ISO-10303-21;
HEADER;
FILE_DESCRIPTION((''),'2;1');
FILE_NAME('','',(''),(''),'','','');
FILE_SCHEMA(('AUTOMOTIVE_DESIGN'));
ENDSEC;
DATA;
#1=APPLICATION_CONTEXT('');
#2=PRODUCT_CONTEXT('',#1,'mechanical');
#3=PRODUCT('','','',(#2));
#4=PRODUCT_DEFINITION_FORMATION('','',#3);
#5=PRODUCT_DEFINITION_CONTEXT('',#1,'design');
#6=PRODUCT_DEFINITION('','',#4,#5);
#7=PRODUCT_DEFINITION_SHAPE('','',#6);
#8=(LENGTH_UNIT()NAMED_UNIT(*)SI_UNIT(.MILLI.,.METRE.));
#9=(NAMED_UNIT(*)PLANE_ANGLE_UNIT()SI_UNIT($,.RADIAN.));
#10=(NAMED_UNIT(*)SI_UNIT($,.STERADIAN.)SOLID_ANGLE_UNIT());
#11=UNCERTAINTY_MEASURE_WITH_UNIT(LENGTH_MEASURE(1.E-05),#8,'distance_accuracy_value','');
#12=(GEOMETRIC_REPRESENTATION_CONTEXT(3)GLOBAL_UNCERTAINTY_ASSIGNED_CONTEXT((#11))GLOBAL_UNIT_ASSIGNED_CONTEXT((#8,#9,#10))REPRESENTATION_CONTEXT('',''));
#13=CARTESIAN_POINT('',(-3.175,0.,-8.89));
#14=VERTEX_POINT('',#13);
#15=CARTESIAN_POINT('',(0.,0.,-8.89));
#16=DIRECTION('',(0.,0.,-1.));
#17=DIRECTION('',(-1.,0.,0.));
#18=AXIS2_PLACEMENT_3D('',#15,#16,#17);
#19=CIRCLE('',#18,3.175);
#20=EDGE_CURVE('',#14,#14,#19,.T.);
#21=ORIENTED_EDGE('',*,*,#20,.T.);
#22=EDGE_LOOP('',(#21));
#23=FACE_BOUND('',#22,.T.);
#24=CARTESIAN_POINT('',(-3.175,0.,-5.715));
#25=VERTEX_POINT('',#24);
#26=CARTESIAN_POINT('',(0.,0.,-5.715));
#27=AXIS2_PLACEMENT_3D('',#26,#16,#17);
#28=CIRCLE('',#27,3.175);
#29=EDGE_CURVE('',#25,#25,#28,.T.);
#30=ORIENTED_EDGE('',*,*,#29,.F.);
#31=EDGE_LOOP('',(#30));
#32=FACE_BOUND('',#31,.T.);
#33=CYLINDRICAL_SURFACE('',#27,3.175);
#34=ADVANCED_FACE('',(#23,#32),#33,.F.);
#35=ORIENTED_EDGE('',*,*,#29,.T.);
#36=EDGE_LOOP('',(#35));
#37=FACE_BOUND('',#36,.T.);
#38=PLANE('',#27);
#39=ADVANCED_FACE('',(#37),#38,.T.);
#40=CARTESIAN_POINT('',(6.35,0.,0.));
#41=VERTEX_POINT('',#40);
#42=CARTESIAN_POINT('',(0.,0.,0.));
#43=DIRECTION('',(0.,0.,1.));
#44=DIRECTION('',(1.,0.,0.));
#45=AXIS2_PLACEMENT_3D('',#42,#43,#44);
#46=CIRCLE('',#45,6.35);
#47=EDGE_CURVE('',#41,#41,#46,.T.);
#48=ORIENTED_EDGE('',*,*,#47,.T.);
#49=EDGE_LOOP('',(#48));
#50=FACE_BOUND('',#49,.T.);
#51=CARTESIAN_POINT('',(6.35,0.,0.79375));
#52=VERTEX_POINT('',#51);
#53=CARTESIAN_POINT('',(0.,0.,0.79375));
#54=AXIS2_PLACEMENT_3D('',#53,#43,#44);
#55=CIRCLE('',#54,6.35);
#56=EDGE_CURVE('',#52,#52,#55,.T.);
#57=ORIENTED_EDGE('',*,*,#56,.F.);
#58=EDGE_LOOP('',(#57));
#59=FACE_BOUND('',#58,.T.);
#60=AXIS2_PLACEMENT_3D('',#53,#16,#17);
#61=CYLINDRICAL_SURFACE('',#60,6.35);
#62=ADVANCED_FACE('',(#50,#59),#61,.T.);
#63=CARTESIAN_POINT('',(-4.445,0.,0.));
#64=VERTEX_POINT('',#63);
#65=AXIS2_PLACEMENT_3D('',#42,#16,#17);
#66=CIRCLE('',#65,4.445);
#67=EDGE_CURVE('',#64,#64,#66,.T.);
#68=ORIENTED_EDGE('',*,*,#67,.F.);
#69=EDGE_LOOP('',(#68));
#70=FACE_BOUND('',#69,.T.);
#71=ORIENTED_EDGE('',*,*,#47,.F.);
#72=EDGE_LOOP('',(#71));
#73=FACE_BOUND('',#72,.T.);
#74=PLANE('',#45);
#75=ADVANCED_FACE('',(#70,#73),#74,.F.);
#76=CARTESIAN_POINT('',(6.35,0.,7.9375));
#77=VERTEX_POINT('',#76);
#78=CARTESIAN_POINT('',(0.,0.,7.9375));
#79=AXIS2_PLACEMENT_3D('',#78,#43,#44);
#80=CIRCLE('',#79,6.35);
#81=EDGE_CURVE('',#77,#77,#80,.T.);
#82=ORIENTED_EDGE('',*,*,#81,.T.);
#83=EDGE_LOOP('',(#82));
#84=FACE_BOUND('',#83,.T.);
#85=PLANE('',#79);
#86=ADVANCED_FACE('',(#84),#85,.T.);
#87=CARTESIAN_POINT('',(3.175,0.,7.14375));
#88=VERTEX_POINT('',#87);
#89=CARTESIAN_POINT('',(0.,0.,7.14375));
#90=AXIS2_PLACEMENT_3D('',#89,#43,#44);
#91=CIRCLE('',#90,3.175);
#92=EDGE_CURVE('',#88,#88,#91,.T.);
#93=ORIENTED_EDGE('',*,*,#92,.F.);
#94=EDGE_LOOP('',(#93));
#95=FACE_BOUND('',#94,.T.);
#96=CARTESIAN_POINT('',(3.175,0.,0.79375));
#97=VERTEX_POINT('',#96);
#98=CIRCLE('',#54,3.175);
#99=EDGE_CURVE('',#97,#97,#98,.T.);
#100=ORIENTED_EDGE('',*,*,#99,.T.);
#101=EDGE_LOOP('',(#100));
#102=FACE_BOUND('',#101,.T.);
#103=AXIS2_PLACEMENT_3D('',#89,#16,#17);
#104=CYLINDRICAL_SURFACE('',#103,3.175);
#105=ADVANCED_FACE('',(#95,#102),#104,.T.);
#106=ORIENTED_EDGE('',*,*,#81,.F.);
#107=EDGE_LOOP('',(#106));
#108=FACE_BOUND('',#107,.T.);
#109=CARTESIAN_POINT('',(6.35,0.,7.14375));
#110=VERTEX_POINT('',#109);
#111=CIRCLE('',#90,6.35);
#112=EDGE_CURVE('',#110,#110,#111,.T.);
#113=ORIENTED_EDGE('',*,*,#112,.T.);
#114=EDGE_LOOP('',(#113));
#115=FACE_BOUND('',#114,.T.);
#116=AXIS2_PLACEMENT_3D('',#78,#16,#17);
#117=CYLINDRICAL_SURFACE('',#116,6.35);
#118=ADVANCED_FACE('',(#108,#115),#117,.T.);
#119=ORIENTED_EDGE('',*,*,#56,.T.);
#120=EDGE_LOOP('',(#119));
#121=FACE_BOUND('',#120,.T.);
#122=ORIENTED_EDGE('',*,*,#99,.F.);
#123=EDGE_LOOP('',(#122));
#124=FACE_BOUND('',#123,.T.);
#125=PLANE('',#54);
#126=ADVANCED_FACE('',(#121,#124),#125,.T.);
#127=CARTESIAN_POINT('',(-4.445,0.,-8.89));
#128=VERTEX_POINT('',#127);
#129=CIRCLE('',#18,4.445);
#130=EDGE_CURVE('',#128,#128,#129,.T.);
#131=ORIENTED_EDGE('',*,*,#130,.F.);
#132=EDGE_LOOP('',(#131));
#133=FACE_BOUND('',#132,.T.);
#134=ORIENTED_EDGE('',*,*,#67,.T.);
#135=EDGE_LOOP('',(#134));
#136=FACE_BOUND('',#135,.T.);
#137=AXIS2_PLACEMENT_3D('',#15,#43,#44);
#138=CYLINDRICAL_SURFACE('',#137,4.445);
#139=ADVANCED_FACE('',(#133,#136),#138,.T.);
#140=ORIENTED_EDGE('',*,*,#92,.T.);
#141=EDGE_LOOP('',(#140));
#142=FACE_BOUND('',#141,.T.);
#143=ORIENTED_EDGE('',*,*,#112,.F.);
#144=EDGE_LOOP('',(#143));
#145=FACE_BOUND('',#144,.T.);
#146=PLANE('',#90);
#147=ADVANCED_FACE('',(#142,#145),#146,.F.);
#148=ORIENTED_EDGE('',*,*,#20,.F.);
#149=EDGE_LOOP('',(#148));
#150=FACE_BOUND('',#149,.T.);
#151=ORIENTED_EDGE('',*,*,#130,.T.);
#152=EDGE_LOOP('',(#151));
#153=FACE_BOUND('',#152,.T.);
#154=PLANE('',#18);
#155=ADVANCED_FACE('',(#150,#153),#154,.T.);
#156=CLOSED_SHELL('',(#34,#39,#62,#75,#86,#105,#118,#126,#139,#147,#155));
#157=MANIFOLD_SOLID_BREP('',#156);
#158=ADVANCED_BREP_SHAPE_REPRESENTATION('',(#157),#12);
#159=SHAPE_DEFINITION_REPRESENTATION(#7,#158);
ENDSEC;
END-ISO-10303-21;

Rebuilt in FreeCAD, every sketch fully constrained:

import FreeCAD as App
import Part
import Sketcher

V = App.Vector
Q = App.Units.Quantity

doc = App.newDocument("Part")
body = doc.addObject("PartDesign::Body", "Body")

# Sketch on XY plane
sketch1 = doc.addObject("Sketcher::SketchObject", "Sketch")
body.addObject(sketch1)
sketch1.AttachmentSupport = (doc.XY_Plane, [""])
sketch1.MapMode = "FlatFace"
sketch1.addGeometry(Part.Circle(V(0, 0, 0), V(0, 0, 1), 6), False)
sketch1.addConstraint([
    Sketcher.Constraint("Coincident", 0, 3, -1, 1),
    Sketcher.Constraint("Diameter", 0, Q("0.5 in")),
])
pad1 = doc.addObject("PartDesign::Pad", "Pad")
body.addObject(pad1)
pad1.Profile = sketch1
pad1.Length = Q("0.03125 in")

# Sketch on XY plane
sketch2 = doc.addObject("Sketcher::SketchObject", "Sketch001")
body.addObject(sketch2)
sketch2.AttachmentSupport = (doc.XY_Plane, [""])
sketch2.MapMode = "FlatFace"
sketch2.AttachmentOffset = App.Placement(V(0, 0, 0.03125 * 25.4), App.Rotation())
sketch2.addGeometry(Part.Circle(V(0, 0, 0), V(0, 0, 1), 3.2), False)
sketch2.addConstraint([
    Sketcher.Constraint("Coincident", 0, 3, -1, 1),
    Sketcher.Constraint("Diameter", 0, Q("0.25 in")),
])
pad2 = doc.addObject("PartDesign::Pad", "Pad001")
body.addObject(pad2)
pad2.Profile = sketch2
pad2.Length = Q("0.25 in")

# Sketch on XY plane
sketch3 = doc.addObject("Sketcher::SketchObject", "Sketch002")
body.addObject(sketch3)
sketch3.AttachmentSupport = (doc.XY_Plane, [""])
sketch3.MapMode = "FlatFace"
sketch3.AttachmentOffset = App.Placement(V(0, 0, 0.28125 * 25.4), App.Rotation())
sketch3.addGeometry(Part.Circle(V(0, 0, 0), V(0, 0, 1), 6), False)
sketch3.addConstraint([
    Sketcher.Constraint("Coincident", 0, 3, -1, 1),
    Sketcher.Constraint("Diameter", 0, Q("0.5 in")),
])
pad3 = doc.addObject("PartDesign::Pad", "Pad002")
body.addObject(pad3)
pad3.Profile = sketch3
pad3.Length = Q("0.03125 in")

# Sketch on XY plane
sketch4 = doc.addObject("Sketcher::SketchObject", "Sketch003")
body.addObject(sketch4)
sketch4.AttachmentSupport = (doc.XY_Plane, [""])
sketch4.MapMode = "FlatFace"
sketch4.addGeometry(Part.Circle(V(0, 0, 0), V(0, 0, 1), 4.4), False)
sketch4.addConstraint([
    Sketcher.Constraint("Coincident", 0, 3, -1, 1),
    Sketcher.Constraint("Diameter", 0, Q("0.35 in")),
])
pad4 = doc.addObject("PartDesign::Pad", "Pad003")
body.addObject(pad4)
pad4.Profile = sketch4
pad4.Length = Q("0.35 in")
pad4.Reversed = True

# Sketch on XY plane
sketch5 = doc.addObject("Sketcher::SketchObject", "Sketch004")
body.addObject(sketch5)
sketch5.AttachmentSupport = (doc.XY_Plane, [""])
sketch5.MapMode = "FlatFace"
sketch5.AttachmentOffset = App.Placement(V(0, 0, -0.35 * 25.4), App.Rotation())
sketch5.addGeometry(Part.Circle(V(0, 0, 0), V(0, 0, 1), 3.2), False)
sketch5.addConstraint([
    Sketcher.Constraint("Coincident", 0, 3, -1, 1),
    Sketcher.Constraint("Diameter", 0, Q("0.25 in")),
])
pocket1 = doc.addObject("PartDesign::Pocket", "Pocket")
body.addObject(pocket1)
pocket1.Profile = sketch5
pocket1.Length = Q("0.125 in")
pocket1.Reversed = True

doc.recompute()
